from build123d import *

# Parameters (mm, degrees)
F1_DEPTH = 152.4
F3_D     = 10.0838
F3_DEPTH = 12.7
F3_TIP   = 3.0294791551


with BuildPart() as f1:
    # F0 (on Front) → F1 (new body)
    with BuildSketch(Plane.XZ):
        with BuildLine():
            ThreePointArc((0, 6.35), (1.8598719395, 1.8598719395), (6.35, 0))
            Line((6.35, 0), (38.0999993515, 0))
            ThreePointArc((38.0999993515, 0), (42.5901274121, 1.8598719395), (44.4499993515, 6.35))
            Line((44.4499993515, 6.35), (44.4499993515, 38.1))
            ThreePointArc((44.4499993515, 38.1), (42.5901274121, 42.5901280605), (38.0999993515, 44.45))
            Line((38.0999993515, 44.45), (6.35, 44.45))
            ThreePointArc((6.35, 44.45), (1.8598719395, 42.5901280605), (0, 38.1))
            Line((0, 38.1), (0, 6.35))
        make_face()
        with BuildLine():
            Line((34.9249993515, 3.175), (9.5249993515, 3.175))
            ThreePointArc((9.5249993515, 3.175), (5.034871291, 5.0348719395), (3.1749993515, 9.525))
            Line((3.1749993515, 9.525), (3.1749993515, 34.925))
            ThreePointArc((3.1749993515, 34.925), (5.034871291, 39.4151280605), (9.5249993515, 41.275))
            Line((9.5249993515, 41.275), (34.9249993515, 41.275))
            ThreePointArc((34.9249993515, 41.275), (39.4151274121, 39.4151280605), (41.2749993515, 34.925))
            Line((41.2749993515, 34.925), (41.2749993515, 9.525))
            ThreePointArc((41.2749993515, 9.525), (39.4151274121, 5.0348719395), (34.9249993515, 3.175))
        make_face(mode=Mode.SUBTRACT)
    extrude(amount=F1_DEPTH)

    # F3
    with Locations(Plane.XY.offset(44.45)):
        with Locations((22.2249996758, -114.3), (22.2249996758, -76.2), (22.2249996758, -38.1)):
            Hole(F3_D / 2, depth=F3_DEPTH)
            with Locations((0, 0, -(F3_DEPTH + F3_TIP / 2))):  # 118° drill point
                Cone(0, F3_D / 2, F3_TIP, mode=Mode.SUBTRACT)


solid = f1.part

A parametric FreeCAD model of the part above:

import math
import FreeCAD as App
import Part
import Sketcher

V = App.Vector
Q = App.Units.Quantity

doc = App.newDocument("Part")
body = doc.addObject("PartDesign::Body", "Body")

# Sketch on XZ plane
sketch1 = body.newObject("Sketcher::SketchObject", "Sketch")
sketch1.AttachmentSupport = (doc.getObject("XZ_Plane"), [""])
sketch1.MapMode = "FlatFace"
sketch1.addGeometry([
    Part.ArcOfCircle(Part.Circle(V(6, 6, 0), V(0, 0, 1), 6), math.radians(180), math.radians(270)),  # 0
    Part.LineSegment(V(6, 0, 0), V(38, 0, 0)),  # 1
    Part.ArcOfCircle(Part.Circle(V(38, 6, 0), V(0, 0, 1), 6), math.radians(-90), math.radians(0)),  # 2
    Part.LineSegment(V(44, 6, 0), V(44, 38, 0)),  # 3
    Part.ArcOfCircle(Part.Circle(V(38, 38, 0), V(0, 0, 1), 6), math.radians(0), math.radians(90)),  # 4
    Part.LineSegment(V(38, 44, 0), V(6, 44, 0)),  # 5
    Part.ArcOfCircle(Part.Circle(V(6, 38, 0), V(0, 0, 1), 6), math.radians(90), math.radians(180)),  # 6
    Part.LineSegment(V(0, 38, 0), V(0, 6, 0)),  # 7
    Part.ArcOfCircle(Part.Circle(V(35, 10, 0), V(0, 0, 1), 6), math.radians(-90), math.radians(0)),  # 8
    Part.LineSegment(V(35, 3, 0), V(10, 3, 0)),  # 9
    Part.ArcOfCircle(Part.Circle(V(10, 10, 0), V(0, 0, 1), 6), math.radians(180), math.radians(270)),  # 10
    Part.LineSegment(V(3, 10, 0), V(3, 35, 0)),  # 11
    Part.ArcOfCircle(Part.Circle(V(10, 35, 0), V(0, 0, 1), 6), math.radians(90), math.radians(180)),  # 12
    Part.LineSegment(V(10, 41, 0), V(35, 41, 0)),  # 13
    Part.ArcOfCircle(Part.Circle(V(35, 35, 0), V(0, 0, 1), 6), math.radians(0), math.radians(90)),  # 14
    Part.LineSegment(V(41, 35, 0), V(41, 10, 0)),  # 15
], False)
sketch1.addConstraint([
    Sketcher.Constraint("Tangent", 0, 2, 1, 1),
    Sketcher.Constraint("Tangent", 1, 2, 2, 1),
    Sketcher.Constraint("Tangent", 2, 2, 3, 1),
    Sketcher.Constraint("Tangent", 3, 2, 4, 1),
    Sketcher.Constraint("Tangent", 4, 2, 5, 1),
    Sketcher.Constraint("Tangent", 5, 2, 6, 1),
    Sketcher.Constraint("Tangent", 6, 2, 7, 1),
    Sketcher.Constraint("Tangent", 7, 2, 0, 1),
    Sketcher.Constraint("Tangent", 8, 1, 9, 1),
    Sketcher.Constraint("Tangent", 9, 2, 10, 2),
    Sketcher.Constraint("Tangent", 10, 1, 11, 1),
    Sketcher.Constraint("Tangent", 11, 2, 12, 2),
    Sketcher.Constraint("Tangent", 12, 1, 13, 1),
    Sketcher.Constraint("Tangent", 13, 2, 14, 2),
    Sketcher.Constraint("Tangent", 14, 1, 15, 1),
    Sketcher.Constraint("Tangent", 15, 2, 8, 2),
    Sketcher.Constraint("Horizontal", 1),
    Sketcher.Constraint("Vertical", 3),
    Sketcher.Constraint("Horizontal", 5),
    Sketcher.Constraint("Vertical", 7),
    Sketcher.Constraint("Horizontal", 9),
    Sketcher.Constraint("Vertical", 11),
    Sketcher.Constraint("Horizontal", 13),
    Sketcher.Constraint("Vertical", 15),
    Sketcher.Constraint("Equal", 0, 2),
    Sketcher.Constraint("Equal", 2, 4),
    Sketcher.Constraint("Equal", 4, 6),
    Sketcher.Constraint("Equal", 6, 8),
    Sketcher.Constraint("Equal", 8, 10),
    Sketcher.Constraint("Equal", 10, 12),
    Sketcher.Constraint("Equal", 12, 14),
    Sketcher.Constraint("PointOnObject", 0, 2, -1),
    Sketcher.Constraint("PointOnObject", 6, 2, -2),
    Sketcher.Constraint("Equal", 5, 3),
    Sketcher.Constraint("Equal", 13, 11),
    Sketcher.Constraint("DistanceX", 9, 2, 9, 1, Q("1 in")),
    Sketcher.Constraint("Radius", 0, Q("0.25 in")),
    Sketcher.Constraint("DistanceX", 1, 1, 1, 2, Q("1.25 in")),
    Sketcher.Constraint("DistanceX", -1, 1, 8, 3, Q("1.375 in")),
    Sketcher.Constraint("DistanceY", -1, 1, 8, 3, Q("0.375 in")),
])
pad1 = body.newObject("PartDesign::Pad", "Pad")
pad1.Profile = sketch1
pad1.Length = Q("6 in")

# Sketch on XY plane
sketch2 = body.newObject("Sketcher::SketchObject", "Sketch001")
sketch2.AttachmentSupport = (doc.getObject("XY_Plane"), [""])
sketch2.MapMode = "FlatFace"
sketch2.AttachmentOffset = App.Placement(V(0, 0, 1.75 * 25.4), App.Rotation())
sketch2.addGeometry([
    Part.Circle(V(22, -114, 0), V(0, 0, 1), 5),
    Part.Circle(V(22, -76, 0), V(0, 0, 1), 5),
    Part.Circle(V(22, -38, 0), V(0, 0, 1), 5),
], False)
sketch2.addConstraint([
    Sketcher.Constraint("Equal", 0, 1),
    Sketcher.Constraint("Equal", 1, 2),
    Sketcher.Constraint("Vertical", 0, 3, 1, 3),
    Sketcher.Constraint("Vertical", 1, 3, 2, 3),
    Sketcher.Constraint("Diameter", 0, Q("0.397 in")),
    Sketcher.Constraint("DistanceY", 1, 3, -1, 1, Q("3 in")),
    Sketcher.Constraint("DistanceY", 0, 3, 2, 3, Q("3 in")),
    Sketcher.Constraint("DistanceY", 0, 3, -1, 1, Q("4.5 in")),
    Sketcher.Constraint("DistanceX", -1, 1, 0, 3, Q("0.875 in")),
])
doc.recompute()
hole = body.newObject("PartDesign::Hole", "Hole")
hole.Profile = sketch2
hole.ThreadType = "None"
hole.Diameter = Q("0.397 in")
hole.DepthType = "Dimension"
hole.Depth = Q("0.5 in")
hole.DrillPoint = "Angled"
hole.DrillPointAngle = 118

doc.recompute()
